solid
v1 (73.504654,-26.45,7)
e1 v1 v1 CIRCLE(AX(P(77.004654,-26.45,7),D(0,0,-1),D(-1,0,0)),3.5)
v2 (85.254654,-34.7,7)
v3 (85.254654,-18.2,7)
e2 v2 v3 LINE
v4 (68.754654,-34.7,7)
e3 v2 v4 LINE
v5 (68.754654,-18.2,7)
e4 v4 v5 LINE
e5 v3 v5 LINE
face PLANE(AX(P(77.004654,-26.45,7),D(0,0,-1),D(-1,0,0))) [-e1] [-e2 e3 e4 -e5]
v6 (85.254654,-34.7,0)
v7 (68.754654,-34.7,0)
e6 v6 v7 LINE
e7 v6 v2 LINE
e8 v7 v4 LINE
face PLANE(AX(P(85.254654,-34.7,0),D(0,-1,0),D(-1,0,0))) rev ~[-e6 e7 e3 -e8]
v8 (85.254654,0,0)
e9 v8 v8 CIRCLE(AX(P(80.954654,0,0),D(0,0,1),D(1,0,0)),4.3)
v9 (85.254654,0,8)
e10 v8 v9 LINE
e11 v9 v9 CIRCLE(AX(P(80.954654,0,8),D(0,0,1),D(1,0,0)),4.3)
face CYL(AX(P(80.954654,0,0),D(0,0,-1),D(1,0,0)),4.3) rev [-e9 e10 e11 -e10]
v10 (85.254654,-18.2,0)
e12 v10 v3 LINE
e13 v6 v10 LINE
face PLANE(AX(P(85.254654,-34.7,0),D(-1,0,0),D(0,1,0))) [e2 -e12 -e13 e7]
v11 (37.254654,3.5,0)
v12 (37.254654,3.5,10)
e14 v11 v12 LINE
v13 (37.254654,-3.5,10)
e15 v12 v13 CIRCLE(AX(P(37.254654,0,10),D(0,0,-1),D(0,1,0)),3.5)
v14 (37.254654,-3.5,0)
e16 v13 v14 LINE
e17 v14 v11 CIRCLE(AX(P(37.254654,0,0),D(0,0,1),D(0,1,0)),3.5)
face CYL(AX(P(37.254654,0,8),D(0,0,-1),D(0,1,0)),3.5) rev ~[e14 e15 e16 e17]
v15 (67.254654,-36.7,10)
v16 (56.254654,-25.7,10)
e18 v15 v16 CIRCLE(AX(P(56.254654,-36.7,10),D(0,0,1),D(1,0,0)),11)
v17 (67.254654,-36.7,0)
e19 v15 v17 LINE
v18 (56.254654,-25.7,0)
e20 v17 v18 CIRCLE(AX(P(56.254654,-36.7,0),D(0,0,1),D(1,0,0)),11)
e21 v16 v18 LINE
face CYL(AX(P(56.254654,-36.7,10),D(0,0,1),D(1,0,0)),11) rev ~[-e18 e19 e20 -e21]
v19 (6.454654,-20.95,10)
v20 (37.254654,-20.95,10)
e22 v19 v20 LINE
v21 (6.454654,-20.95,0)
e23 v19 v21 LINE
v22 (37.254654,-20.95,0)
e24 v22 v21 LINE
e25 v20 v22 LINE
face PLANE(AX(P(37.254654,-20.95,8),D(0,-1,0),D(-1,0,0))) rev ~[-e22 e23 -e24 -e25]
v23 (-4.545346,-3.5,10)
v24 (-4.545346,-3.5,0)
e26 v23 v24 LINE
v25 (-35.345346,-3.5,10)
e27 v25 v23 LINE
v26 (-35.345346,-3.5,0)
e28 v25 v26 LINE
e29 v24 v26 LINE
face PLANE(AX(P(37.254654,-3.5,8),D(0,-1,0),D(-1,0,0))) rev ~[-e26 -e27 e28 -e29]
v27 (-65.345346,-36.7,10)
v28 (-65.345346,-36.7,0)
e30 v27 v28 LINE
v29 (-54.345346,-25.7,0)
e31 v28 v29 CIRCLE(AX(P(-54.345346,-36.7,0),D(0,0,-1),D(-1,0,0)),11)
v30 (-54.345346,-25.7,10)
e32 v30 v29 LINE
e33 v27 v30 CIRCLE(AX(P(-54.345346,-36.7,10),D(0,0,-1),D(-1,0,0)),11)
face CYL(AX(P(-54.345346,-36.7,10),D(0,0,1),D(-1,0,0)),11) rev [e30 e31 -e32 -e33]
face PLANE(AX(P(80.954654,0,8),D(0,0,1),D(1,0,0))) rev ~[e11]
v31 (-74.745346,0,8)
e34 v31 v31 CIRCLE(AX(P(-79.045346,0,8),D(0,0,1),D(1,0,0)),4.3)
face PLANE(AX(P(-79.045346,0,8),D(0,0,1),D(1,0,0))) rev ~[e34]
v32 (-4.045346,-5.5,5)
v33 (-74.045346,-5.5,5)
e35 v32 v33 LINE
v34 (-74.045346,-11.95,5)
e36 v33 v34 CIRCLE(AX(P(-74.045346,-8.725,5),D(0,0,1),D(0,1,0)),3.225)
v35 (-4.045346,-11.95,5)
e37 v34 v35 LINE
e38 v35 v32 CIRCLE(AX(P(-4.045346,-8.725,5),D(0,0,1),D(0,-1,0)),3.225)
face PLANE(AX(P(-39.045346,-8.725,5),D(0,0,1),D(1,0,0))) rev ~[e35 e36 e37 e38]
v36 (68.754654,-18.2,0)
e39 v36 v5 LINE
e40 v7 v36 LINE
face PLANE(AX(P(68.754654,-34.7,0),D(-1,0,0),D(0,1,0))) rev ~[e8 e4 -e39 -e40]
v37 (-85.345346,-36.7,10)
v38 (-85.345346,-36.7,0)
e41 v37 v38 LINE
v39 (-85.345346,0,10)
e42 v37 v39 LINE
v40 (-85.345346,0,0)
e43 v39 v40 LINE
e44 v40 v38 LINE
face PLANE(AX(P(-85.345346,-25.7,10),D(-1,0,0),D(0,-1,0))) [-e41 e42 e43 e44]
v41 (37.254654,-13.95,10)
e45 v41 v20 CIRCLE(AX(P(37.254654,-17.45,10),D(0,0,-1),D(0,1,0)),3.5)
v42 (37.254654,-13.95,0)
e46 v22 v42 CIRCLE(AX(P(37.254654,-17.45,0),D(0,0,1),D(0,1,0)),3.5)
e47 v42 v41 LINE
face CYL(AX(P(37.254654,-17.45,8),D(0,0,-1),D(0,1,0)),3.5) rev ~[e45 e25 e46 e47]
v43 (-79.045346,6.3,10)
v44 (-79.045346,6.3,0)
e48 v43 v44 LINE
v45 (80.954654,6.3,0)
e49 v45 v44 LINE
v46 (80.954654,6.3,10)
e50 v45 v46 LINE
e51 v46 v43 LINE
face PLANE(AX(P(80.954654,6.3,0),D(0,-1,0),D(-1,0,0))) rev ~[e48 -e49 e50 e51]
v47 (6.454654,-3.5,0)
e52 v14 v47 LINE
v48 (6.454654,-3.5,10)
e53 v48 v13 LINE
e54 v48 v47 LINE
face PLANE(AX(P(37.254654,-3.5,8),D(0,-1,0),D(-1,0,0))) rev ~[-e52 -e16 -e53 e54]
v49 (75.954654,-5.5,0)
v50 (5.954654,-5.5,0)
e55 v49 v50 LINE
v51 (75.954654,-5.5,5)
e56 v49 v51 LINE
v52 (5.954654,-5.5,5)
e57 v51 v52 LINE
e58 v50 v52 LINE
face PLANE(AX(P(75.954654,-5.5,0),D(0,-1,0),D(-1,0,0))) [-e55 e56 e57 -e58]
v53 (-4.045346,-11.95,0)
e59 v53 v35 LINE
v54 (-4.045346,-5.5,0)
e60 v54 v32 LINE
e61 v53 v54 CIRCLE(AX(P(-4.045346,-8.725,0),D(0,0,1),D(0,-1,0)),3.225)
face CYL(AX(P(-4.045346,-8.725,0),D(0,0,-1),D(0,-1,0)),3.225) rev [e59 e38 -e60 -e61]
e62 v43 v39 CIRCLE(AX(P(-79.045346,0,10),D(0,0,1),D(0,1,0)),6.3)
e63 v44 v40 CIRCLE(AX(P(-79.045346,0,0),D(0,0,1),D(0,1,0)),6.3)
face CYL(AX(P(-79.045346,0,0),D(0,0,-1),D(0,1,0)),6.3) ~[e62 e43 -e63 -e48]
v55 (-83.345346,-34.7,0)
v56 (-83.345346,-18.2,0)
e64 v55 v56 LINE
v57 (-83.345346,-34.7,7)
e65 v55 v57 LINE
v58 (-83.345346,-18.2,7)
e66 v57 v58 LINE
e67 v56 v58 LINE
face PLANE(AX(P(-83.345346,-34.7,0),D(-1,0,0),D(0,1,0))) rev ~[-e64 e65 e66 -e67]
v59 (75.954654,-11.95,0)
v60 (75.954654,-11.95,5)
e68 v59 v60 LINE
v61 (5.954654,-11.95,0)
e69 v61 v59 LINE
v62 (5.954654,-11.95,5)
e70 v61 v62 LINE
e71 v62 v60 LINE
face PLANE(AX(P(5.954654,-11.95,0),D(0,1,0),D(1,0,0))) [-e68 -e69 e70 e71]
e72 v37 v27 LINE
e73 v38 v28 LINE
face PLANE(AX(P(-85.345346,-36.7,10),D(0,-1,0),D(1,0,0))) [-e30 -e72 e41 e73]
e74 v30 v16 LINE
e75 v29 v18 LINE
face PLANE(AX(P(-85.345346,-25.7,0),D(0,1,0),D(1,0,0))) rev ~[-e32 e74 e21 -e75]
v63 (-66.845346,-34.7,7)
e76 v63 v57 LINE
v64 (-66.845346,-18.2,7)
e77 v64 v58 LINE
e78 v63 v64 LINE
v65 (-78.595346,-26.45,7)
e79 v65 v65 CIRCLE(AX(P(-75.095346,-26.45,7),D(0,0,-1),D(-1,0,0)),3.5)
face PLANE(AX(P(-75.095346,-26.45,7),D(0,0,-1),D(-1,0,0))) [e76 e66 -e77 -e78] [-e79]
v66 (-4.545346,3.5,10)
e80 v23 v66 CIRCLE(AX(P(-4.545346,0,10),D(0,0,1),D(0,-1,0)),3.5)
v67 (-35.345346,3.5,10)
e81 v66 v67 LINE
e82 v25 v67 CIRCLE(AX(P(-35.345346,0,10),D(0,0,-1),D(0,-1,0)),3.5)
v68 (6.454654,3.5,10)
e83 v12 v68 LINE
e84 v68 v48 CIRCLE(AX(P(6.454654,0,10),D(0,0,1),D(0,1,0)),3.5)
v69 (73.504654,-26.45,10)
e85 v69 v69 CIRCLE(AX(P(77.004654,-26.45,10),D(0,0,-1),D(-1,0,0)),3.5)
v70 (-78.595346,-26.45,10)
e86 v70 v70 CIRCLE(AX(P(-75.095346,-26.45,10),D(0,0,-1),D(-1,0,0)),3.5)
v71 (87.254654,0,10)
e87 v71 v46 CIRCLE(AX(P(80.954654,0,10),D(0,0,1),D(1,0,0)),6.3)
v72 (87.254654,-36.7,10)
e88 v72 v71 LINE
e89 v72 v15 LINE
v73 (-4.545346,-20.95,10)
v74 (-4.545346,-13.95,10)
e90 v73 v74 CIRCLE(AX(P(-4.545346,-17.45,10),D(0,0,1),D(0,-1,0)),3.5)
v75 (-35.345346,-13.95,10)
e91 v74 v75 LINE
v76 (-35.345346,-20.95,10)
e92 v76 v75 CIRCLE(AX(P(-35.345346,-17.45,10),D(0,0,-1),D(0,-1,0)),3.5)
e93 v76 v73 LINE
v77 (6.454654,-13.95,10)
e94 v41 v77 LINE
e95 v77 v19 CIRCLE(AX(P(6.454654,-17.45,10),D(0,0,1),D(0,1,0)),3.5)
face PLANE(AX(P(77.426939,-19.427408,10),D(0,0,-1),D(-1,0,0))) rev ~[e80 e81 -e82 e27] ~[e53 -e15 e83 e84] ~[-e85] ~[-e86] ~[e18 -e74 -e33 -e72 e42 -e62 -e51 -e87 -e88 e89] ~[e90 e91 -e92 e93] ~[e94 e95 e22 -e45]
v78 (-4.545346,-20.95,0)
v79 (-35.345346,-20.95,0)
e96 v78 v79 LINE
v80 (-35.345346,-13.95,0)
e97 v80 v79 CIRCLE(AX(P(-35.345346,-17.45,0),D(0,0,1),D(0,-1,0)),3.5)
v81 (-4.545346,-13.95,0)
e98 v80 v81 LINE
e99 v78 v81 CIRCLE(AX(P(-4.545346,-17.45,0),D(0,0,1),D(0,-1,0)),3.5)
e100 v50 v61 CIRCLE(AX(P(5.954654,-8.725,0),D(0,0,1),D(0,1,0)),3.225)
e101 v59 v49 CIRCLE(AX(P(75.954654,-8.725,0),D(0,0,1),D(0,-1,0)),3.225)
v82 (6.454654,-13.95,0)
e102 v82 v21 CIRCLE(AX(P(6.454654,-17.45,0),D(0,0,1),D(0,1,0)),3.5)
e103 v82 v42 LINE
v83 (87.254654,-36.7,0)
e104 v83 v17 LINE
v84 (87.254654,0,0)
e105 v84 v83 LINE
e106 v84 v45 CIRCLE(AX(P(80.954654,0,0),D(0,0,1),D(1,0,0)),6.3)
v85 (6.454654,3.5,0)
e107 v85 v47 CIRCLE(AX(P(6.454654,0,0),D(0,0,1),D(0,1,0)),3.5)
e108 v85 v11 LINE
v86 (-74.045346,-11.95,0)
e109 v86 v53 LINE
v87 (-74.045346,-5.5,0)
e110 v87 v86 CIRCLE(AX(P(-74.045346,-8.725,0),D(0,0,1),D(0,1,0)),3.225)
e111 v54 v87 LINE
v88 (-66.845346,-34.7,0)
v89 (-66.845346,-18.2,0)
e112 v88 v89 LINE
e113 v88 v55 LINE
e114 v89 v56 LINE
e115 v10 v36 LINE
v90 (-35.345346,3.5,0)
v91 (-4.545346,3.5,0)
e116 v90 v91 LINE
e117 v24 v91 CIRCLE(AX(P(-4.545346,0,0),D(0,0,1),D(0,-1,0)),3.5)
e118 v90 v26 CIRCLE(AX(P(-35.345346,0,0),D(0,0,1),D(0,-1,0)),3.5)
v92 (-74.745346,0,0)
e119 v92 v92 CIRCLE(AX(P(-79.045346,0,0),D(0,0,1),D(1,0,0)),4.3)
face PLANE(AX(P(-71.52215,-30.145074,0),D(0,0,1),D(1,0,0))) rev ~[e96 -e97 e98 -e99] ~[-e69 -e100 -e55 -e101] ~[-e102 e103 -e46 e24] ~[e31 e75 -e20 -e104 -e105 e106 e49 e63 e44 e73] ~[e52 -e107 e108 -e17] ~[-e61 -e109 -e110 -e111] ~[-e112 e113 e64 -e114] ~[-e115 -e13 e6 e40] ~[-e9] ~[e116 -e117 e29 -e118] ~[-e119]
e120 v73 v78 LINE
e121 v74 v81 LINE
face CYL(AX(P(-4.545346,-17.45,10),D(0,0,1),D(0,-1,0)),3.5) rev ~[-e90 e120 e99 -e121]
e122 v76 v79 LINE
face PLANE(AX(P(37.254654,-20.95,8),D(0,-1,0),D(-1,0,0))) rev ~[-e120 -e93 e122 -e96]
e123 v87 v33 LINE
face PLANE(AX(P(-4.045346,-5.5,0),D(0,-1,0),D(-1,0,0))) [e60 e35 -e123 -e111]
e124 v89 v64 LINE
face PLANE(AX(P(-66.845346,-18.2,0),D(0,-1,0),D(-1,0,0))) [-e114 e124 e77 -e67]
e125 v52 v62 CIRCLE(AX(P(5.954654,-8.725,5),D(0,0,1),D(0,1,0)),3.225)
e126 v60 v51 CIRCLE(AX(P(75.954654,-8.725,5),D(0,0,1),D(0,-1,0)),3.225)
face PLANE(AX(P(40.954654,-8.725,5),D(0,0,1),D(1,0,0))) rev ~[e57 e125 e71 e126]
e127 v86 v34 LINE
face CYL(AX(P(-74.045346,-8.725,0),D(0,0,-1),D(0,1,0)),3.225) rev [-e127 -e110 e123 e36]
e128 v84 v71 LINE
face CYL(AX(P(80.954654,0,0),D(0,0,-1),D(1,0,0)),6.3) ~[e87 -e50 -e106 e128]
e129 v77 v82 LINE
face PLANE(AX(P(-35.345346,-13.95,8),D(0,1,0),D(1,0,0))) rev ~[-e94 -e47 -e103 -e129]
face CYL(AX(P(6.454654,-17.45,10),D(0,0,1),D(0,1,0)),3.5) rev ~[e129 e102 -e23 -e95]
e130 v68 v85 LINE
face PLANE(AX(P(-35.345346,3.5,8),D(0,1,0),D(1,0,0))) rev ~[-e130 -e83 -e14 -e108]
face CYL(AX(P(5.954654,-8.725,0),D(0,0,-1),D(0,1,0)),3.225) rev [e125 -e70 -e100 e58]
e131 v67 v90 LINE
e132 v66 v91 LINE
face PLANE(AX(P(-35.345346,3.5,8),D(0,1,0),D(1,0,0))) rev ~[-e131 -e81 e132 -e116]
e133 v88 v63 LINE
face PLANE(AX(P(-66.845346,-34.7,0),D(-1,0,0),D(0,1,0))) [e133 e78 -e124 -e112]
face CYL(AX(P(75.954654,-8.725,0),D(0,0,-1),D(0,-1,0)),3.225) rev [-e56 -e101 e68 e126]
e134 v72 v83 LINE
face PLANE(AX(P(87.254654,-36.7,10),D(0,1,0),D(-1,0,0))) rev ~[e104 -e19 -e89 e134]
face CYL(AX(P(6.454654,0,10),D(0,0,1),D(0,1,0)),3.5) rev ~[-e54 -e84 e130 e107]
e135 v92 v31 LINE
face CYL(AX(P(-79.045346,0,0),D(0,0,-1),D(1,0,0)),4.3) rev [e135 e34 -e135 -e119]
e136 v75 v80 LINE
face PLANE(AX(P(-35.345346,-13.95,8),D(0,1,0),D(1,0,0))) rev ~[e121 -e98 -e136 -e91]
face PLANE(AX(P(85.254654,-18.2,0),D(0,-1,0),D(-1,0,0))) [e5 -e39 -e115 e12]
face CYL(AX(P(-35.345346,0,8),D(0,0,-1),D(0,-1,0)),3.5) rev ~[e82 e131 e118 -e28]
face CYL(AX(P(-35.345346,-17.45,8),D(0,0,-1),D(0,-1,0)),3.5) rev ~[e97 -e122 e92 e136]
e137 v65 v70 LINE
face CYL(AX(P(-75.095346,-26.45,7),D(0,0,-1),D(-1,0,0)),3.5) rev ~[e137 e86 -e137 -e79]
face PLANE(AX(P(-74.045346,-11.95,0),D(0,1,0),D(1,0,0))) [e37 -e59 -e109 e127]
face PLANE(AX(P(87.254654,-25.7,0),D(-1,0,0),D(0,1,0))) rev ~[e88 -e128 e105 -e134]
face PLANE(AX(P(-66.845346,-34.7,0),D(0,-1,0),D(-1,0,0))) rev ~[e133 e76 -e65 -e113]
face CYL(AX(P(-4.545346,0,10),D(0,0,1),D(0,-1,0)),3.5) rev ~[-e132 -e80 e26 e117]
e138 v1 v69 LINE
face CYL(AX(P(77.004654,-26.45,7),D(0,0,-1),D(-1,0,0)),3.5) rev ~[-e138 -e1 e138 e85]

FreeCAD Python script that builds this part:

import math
import FreeCAD as App
import Part
import Sketcher


def add_polygon(sketch, points):
    """Adds a closed chain of lines whose ends are joined by coincident constraints."""
    first, n = sketch.GeometryCount, len(points)
    for a, b in zip(points, points[1:] + points[:1]):
        sketch.addGeometry(Part.LineSegment(App.Vector(*a, 0), App.Vector(*b, 0)), False)
    for i in range(n):
        sketch.addConstraint(Sketcher.Constraint("Coincident", first + i, 2, first + (i + 1) % n, 1))

doc = App.newDocument("Part")
body = doc.addObject("PartDesign::Body", "Body")

sketch1 = body.newObject("Sketcher::SketchObject", "Sketch")
sketch1.AttachmentSupport = (doc.getObject("XY_Plane"), [""])
sketch1.MapMode = "FlatFace"
sketch1.addGeometry(Part.LineSegment(App.Vector(-85.345346, -25.7, 0), App.Vector(87.254654, -25.7, 0)), False)
sketch1.addGeometry(Part.LineSegment(App.Vector(87.254654, -25.7, 0), App.Vector(87.254654, 0, 0)), False)
sketch1.addGeometry(Part.ArcOfCircle(Part.Circle(App.Vector(80.954654, 0, 0), App.Vector(0, 0, 1), 6.3), math.radians(0), math.radians(90)), False)
sketch1.addGeometry(Part.LineSegment(App.Vector(80.954654, 6.3, 0), App.Vector(-79.045346, 6.3, 0)), False)
sketch1.addGeometry(Part.ArcOfCircle(Part.Circle(App.Vector(-79.045346, 0, 0), App.Vector(0, 0, 1), 6.3), math.radians(90), math.radians(180)), False)
sketch1.addGeometry(Part.LineSegment(App.Vector(-85.345346, 0, 0), App.Vector(-85.345346, -25.7, 0)), False)
add_polygon(sketch1, [(-70.845346, -23.7), (-83.345346, -23.7), (-83.345346, -11.2), (-70.845346, -11.2)])
add_polygon(sketch1, [(85.254654, -23.7), (72.754654, -23.7), (72.754654, -11.2), (85.254654, -11.2)])
sketch1.addGeometry(Part.Circle(App.Vector(-79.045346, 0, 0), App.Vector(0, 0, 1), 4.3), False)
sketch1.addGeometry(Part.Circle(App.Vector(80.954654, 0, 0), App.Vector(0, 0, 1), 4.3), False)
sketch1.addConstraint([
    Sketcher.Constraint("Coincident", 0, 2, 1, 1),
    Sketcher.Constraint("Tangent", 1, 2, 2, 1),
    Sketcher.Constraint("Tangent", 2, 2, 3, 1),
    Sketcher.Constraint("Tangent", 3, 2, 4, 1),
    Sketcher.Constraint("Tangent", 4, 2, 5, 1),
    Sketcher.Constraint("Coincident", 5, 2, 0, 1),
    Sketcher.Constraint("Horizontal", 0),
    Sketcher.Constraint("Vertical", 1),
    Sketcher.Constraint("Horizontal", 3),
    Sketcher.Constraint("Vertical", 5),
    Sketcher.Constraint("Horizontal", 6),
    Sketcher.Constraint("Vertical", 7),
    Sketcher.Constraint("Horizontal", 8),
    Sketcher.Constraint("Vertical", 9),
    Sketcher.Constraint("Horizontal", 10),
    Sketcher.Constraint("Vertical", 11),
    Sketcher.Constraint("Horizontal", 12),
    Sketcher.Constraint("Vertical", 13),
    Sketcher.Constraint("Coincident", 14, 3, 4, 3),
    Sketcher.Constraint("Coincident", 15, 3, 2, 3),
    Sketcher.Constraint("Equal", 2, 4),
    Sketcher.Constraint("Equal", 14, 15),
    Sketcher.Constraint("PointOnObject", 2, 3, -1),
    Sketcher.Constraint("Horizontal", 9, 2, 10, 2),
    Sketcher.Constraint("Horizontal", 8, 2, 11, 2),
    Sketcher.Constraint("Equal", 8, 10),
    Sketcher.Constraint("Equal", 12, 7),
    Sketcher.Constraint("Diameter", 14, 8.6),
    Sketcher.Constraint("Radius", 2, 6.3),
    Sketcher.Constraint("DistanceX", 3, 2, 3, 1, 160.0),
    Sketcher.Constraint("DistanceX", 6, 2, 6, 1, 12.5),
    Sketcher.Constraint("DistanceY", 1, 1, 1, 2, 25.7),
    Sketcher.Constraint("DistanceX", 5, 2, 6, 2, 2.0),
    Sketcher.Constraint("DistanceY", 5, 2, 6, 2, 2.0),
    Sketcher.Constraint("DistanceX", 12, 2, 1, 2, 2.0),
    Sketcher.Constraint("DistanceX", -1, 1, 2, 3, 80.954654),
])
pad1 = body.newObject("PartDesign::Pad", "Pad")
pad1.Profile = sketch1
pad1.Length = 8

sketch2 = body.newObject("Sketcher::SketchObject", "Sketch001")
sketch2.AttachmentSupport = (doc.getObject("XY_Plane"), [""])
sketch2.MapMode = "FlatFace"
sketch2.AttachmentOffset = App.Placement(App.Vector(0, 0, 8), App.Rotation())
sketch2.addGeometry([
    Part.LineSegment(App.Vector(37.254654, 3.5, 0), App.Vector(-35.345346, 3.5, 0)),
    Part.ArcOfCircle(Part.Circle(App.Vector(-35.345346, 0, 0), App.Vector(0, 0, 1), 3.5), math.radians(90), math.radians(270)),
    Part.LineSegment(App.Vector(-35.345346, -3.5, 0), App.Vector(37.254654, -3.5, 0)),
    Part.ArcOfCircle(Part.Circle(App.Vector(37.254654, 0, 0), App.Vector(0, 0, 1), 3.5), math.radians(-90), math.radians(90)),
    Part.LineSegment(App.Vector(37.254654, -13.95, 0), App.Vector(-35.345346, -13.95, 0)),
    Part.ArcOfCircle(Part.Circle(App.Vector(-35.345346, -17.45, 0), App.Vector(0, 0, 1), 3.5), math.radians(90), math.radians(270)),
    Part.LineSegment(App.Vector(-35.345346, -20.95, 0), App.Vector(37.254654, -20.95, 0)),
    Part.ArcOfCircle(Part.Circle(App.Vector(37.254654, -17.45, 0), App.Vector(0, 0, 1), 3.5), math.radians(-90), math.radians(90)),
], False)
sketch2.addConstraint([
    Sketcher.Constraint("Tangent", 0, 2, 1, 1),
    Sketcher.Constraint("Tangent", 1, 2, 2, 1),
    Sketcher.Constraint("Tangent", 2, 2, 3, 1),
    Sketcher.Constraint("Tangent", 3, 2, 0, 1),
    Sketcher.Constraint("Tangent", 4, 2, 5, 1),
    Sketcher.Constraint("Tangent", 5, 2, 6, 1),
    Sketcher.Constraint("Tangent", 6, 2, 7, 1),
    Sketcher.Constraint("Tangent", 7, 2, 4, 1),
    Sketcher.Constraint("Horizontal", 0),
    Sketcher.Constraint("Horizontal", 2),
    Sketcher.Constraint("Horizontal", 4),
    Sketcher.Constraint("Horizontal", 6),
    Sketcher.Constraint("Equal", 3, 5),
    Sketcher.Constraint("PointOnObject", 1, 3, -1),
    Sketcher.Constraint("Vertical", 1, 3, 5, 3),
    Sketcher.Constraint("Vertical", 3, 3, 7, 3),
    Sketcher.Constraint("Radius", 1, 3.5),
    Sketcher.Constraint("DistanceX", 0, 2, 0, 1, 72.6),
    Sketcher.Constraint("DistanceY", 5, 3, -1, 1, 17.45),
    Sketcher.Constraint("DistanceX", 1, 3, -1, 1, 35.345346),
])
pocket1 = body.newObject("PartDesign::Pocket", "Pocket")
pocket1.Profile = sketch2
pocket1.Length = 8

sketch3 = body.newObject("Sketcher::SketchObject", "Sketch002")
sketch3.AttachmentSupport = (doc.getObject("XY_Plane"), [""])
sketch3.MapMode = "FlatFace"
sketch3.addGeometry(Part.LineSegment(App.Vector(-85.345346, -25.7, 0), App.Vector(87.254654, -25.7, 0)), False)
sketch3.addGeometry(Part.LineSegment(App.Vector(87.254654, -25.7, 0), App.Vector(87.254654, 0, 0)), False)
sketch3.addGeometry(Part.ArcOfCircle(Part.Circle(App.Vector(80.954654, 0, 0), App.Vector(0, 0, 1), 6.3), math.radians(0), math.radians(90)), False)
sketch3.addGeometry(Part.LineSegment(App.Vector(80.954654, 6.3, 0), App.Vector(-79.045346, 6.3, 0)), False)
sketch3.addGeometry(Part.ArcOfCircle(Part.Circle(App.Vector(-79.045346, 0, 0), App.Vector(0, 0, 1), 6.3), math.radians(90), math.radians(180)), False)
sketch3.addGeometry(Part.LineSegment(App.Vector(-85.345346, 0, 0), App.Vector(-85.345346, -25.7, 0)), False)
add_polygon(sketch3, [(-70.845346, -23.7), (-83.345346, -23.7), (-83.345346, -11.2), (-70.845346, -11.2)])
add_polygon(sketch3, [(85.254654, -23.7), (72.754654, -23.7), (72.754654, -11.2), (85.254654, -11.2)])
sketch3.addGeometry(Part.Circle(App.Vector(-79.045346, 0, 0), App.Vector(0, 0, 1), 4.3), False)
sketch3.addGeometry(Part.Circle(App.Vector(80.954654, 0, 0), App.Vector(0, 0, 1), 4.3), False)
sketch3.addConstraint([
    Sketcher.Constraint("Coincident", 0, 2, 1, 1),
    Sketcher.Constraint("Tangent", 1, 2, 2, 1),
    Sketcher.Constraint("Tangent", 2, 2, 3, 1),
    Sketcher.Constraint("Tangent", 3, 2, 4, 1),
    Sketcher.Constraint("Tangent", 4, 2, 5, 1),
    Sketcher.Constraint("Coincident", 5, 2, 0, 1),
    Sketcher.Constraint("Horizontal", 0),
    Sketcher.Constraint("Vertical", 1),
    Sketcher.Constraint("Horizontal", 3),
    Sketcher.Constraint("Vertical", 5),
    Sketcher.Constraint("Horizontal", 6),
    Sketcher.Constraint("Vertical", 7),
    Sketcher.Constraint("Horizontal", 8),
    Sketcher.Constraint("Vertical", 9),
    Sketcher.Constraint("Horizontal", 10),
    Sketcher.Constraint("Vertical", 11),
    Sketcher.Constraint("Horizontal", 12),
    Sketcher.Constraint("Vertical", 13),
    Sketcher.Constraint("Coincident", 14, 3, 4, 3),
    Sketcher.Constraint("Coincident", 15, 3, 2, 3),
    Sketcher.Constraint("Equal", 2, 4),
    Sketcher.Constraint("Equal", 14, 15),
    Sketcher.Constraint("PointOnObject", 2, 3, -1),
    Sketcher.Constraint("Horizontal", 9, 2, 10, 2),
    Sketcher.Constraint("Horizontal", 8, 2, 11, 2),
    Sketcher.Constraint("Equal", 8, 10),
    Sketcher.Constraint("Equal", 12, 7),
    Sketcher.Constraint("Diameter", 14, 8.6),
    Sketcher.Constraint("Radius", 2, 6.3),
    Sketcher.Constraint("DistanceX", 3, 2, 3, 1, 160.0),
    Sketcher.Constraint("DistanceX", 6, 2, 6, 1, 12.5),
    Sketcher.Constraint("DistanceY", 1, 1, 1, 2, 25.7),
    Sketcher.Constraint("DistanceX", 5, 2, 6, 2, 2.0),
    Sketcher.Constraint("DistanceY", 5, 2, 6, 2, 2.0),
    Sketcher.Constraint("DistanceX", 12, 2, 1, 2, 2.0),
    Sketcher.Constraint("DistanceX", -1, 1, 2, 3, 80.954654),
])
pad2 = body.newObject("PartDesign::Pad", "Pad001")
pad2.Profile = sketch3
pad2.Length = 10

sketch4 = body.newObject("Sketcher::SketchObject", "Sketch003")
sketch4.AttachmentSupport = (doc.getObject("XY_Plane"), [""])
sketch4.MapMode = "FlatFace"
sketch4.AttachmentOffset = App.Placement(App.Vector(0, 0, 8), App.Rotation())
sketch4.addGeometry([
    Part.LineSegment(App.Vector(37.254654, 3.5, 0), App.Vector(-35.345346, 3.5, 0)),
    Part.ArcOfCircle(Part.Circle(App.Vector(-35.345346, 0, 0), App.Vector(0, 0, 1), 3.5), math.radians(90), math.radians(270)),
    Part.LineSegment(App.Vector(-35.345346, -3.5, 0), App.Vector(37.254654, -3.5, 0)),
    Part.ArcOfCircle(Part.Circle(App.Vector(37.254654, 0, 0), App.Vector(0, 0, 1), 3.5), math.radians(-90), math.radians(90)),
    Part.LineSegment(App.Vector(37.254654, -13.95, 0), App.Vector(-35.345346, -13.95, 0)),
    Part.ArcOfCircle(Part.Circle(App.Vector(-35.345346, -17.45, 0), App.Vector(0, 0, 1), 3.5), math.radians(90), math.radians(270)),
    Part.LineSegment(App.Vector(-35.345346, -20.95, 0), App.Vector(37.254654, -20.95, 0)),
    Part.ArcOfCircle(Part.Circle(App.Vector(37.254654, -17.45, 0), App.Vector(0, 0, 1), 3.5), math.radians(-90), math.radians(90)),
], False)
sketch4.addConstraint([
    Sketcher.Constraint("Tangent", 0, 2, 1, 1),
    Sketcher.Constraint("Tangent", 1, 2, 2, 1),
    Sketcher.Constraint("Tangent", 2, 2, 3, 1),
    Sketcher.Constraint("Tangent", 3, 2, 0, 1),
    Sketcher.Constraint("Tangent", 4, 2, 5, 1),
    Sketcher.Constraint("Tangent", 5, 2, 6, 1),
    Sketcher.Constraint("Tangent", 6, 2, 7, 1),
    Sketcher.Constraint("Tangent", 7, 2, 4, 1),
    Sketcher.Constraint("Horizontal", 0),
    Sketcher.Constraint("Horizontal", 2),
    Sketcher.Constraint("Horizontal", 4),
    Sketcher.Constraint("Horizontal", 6),
    Sketcher.Constraint("Equal", 3, 5),
    Sketcher.Constraint("PointOnObject", 1, 3, -1),
    Sketcher.Constraint("Vertical", 1, 3, 5, 3),
    Sketcher.Constraint("Vertical", 3, 3, 7, 3),
    Sketcher.Constraint("Radius", 1, 3.5),
    Sketcher.Constraint("DistanceX", 0, 2, 0, 1, 72.6),
    Sketcher.Constraint("DistanceY", 5, 3, -1, 1, 17.45),
    Sketcher.Constraint("DistanceX", 1, 3, -1, 1, 35.345346),
])
pocket2 = body.newObject("PartDesign::Pocket", "Pocket001")
pocket2.Profile = sketch4
pocket2.Type = "ThroughAll"
pocket2.Midplane = True

sketch5 = body.newObject("Sketcher::SketchObject", "Sketch004")
sketch5.AttachmentSupport = (doc.getObject("XY_Plane"), [""])
sketch5.MapMode = "FlatFace"
sketch5.AttachmentOffset = App.Placement(App.Vector(0, 0, 10), App.Rotation())
add_polygon(sketch5, [(-83.345346, -11.2), (-83.345346, -23.7), (-70.845346, -23.7), (-70.845346, -11.2)])
add_polygon(sketch5, [(72.754654, -11.2), (72.754654, -23.7), (85.254654, -23.7), (85.254654, -11.2)])
sketch5.addConstraint([
    Sketcher.Constraint("Vertical", 0),
    Sketcher.Constraint("Horizontal", 1),
    Sketcher.Constraint("Vertical", 2),
    Sketcher.Constraint("Horizontal", 3),
    Sketcher.Constraint("Vertical", 4),
    Sketcher.Constraint("Horizontal", 5),
    Sketcher.Constraint("Vertical", 6),
    Sketcher.Constraint("Horizontal", 7),
    Sketcher.Constraint("Horizontal", 1, 2, 4, 2),
    Sketcher.Constraint("Horizontal", 3, 2, 6, 2),
    Sketcher.Constraint("Equal", 3, 5),
    Sketcher.Constraint("Equal", 7, 0),
    Sketcher.Constraint("DistanceX", 1, 1, 1, 2, 12.5),
    Sketcher.Constraint("DistanceY", 0, 2, -1, 1, 23.7),
    Sketcher.Constraint("DistanceX", 1, 2, 4, 2, 143.6),
    Sketcher.Constraint("DistanceX", 0, 2, -1, 1, 83.345346),
])
pad3 = body.newObject("PartDesign::Pad", "Pad002")
pad3.Profile = sketch5
pad3.Length = 2
pad3.Reversed = True

sketch6 = body.newObject("Sketcher::SketchObject", "Sketch005")
sketch6.AttachmentSupport = (doc.getObject("XY_Plane"), [""])
sketch6.MapMode = "FlatFace"
sketch6.AttachmentOffset = App.Placement(App.Vector(0, 0, 10), App.Rotation())
sketch6.addGeometry([
    Part.Circle(App.Vector(-79.045346, 0, 0), App.Vector(0, 0, 1), 4.3),
    Part.Circle(App.Vector(80.954654, 0, 0), App.Vector(0, 0, 1), 4.3),
], False)
sketch6.addConstraint([
    Sketcher.Constraint("Equal", 0, 1),
    Sketcher.Constraint("PointOnObject", 0, 3, -1),
    Sketcher.Constraint("PointOnObject", 1, 3, -1),
    Sketcher.Constraint("Diameter", 0, 8.6),
    Sketcher.Constraint("DistanceX", 0, 3, 1, 3, 160.0),
    Sketcher.Constraint("DistanceX", 0, 3, -1, 1, 79.045346),
])
pad4 = body.newObject("PartDesign::Pad", "Pad003")
pad4.Profile = sketch6
pad4.Length = 2
pad4.Reversed = True

sketch7 = body.newObject("Sketcher::SketchObject", "Sketch006")
sketch7.AttachmentSupport = (doc.getObject("XY_Plane"), [""])
sketch7.MapMode = "FlatFace"
sketch7.AttachmentOffset = App.Placement(App.Vector(0, 0, 10), App.Rotation())
sketch7.addGeometry([
    Part.LineSegment(App.Vector(6.454654, 3.5, 0), App.Vector(-4.545346, 3.5, 0)),
    Part.ArcOfCircle(Part.Circle(App.Vector(-4.545346, 0, 0), App.Vector(0, 0, 1), 3.5), math.radians(-90), math.radians(90)),
    Part.LineSegment(App.Vector(-4.545346, -3.5, 0), App.Vector(6.454654, -3.5, 0)),
    Part.ArcOfCircle(Part.Circle(App.Vector(6.454654, 0, 0), App.Vector(0, 0, 1), 3.5), math.radians(90), math.radians(270)),
], False)
sketch7.addConstraint([
    Sketcher.Constraint("Tangent", 0, 2, 1, 2),
    Sketcher.Constraint("Tangent", 1, 1, 2, 1),
    Sketcher.Constraint("Tangent", 2, 2, 3, 2),
    Sketcher.Constraint("Tangent", 3, 1, 0, 1),
    Sketcher.Constraint("Horizontal", 0),
    Sketcher.Constraint("Horizontal", 2),
    Sketcher.Constraint("PointOnObject", 1, 3, -1),
    Sketcher.Constraint("Radius", 1, 3.5),
    Sketcher.Constraint("DistanceX", 0, 2, 0, 1, 11.0),
    Sketcher.Constraint("DistanceX", 1, 3, -1, 1, 4.545346),
])
pad5 = body.newObject("PartDesign::Pad", "Pad004")
pad5.Profile = sketch7
pad5.Length = 10
pad5.Reversed = True

sketch8 = body.newObject("Sketcher::SketchObject", "Sketch007")
sketch8.AttachmentSupport = (doc.getObject("XY_Plane"), [""])
sketch8.MapMode = "FlatFace"
sketch8.AttachmentOffset = App.Placement(App.Vector(0, 0, 10), App.Rotation())
sketch8.addGeometry([
    Part.LineSegment(App.Vector(6.454654, -13.95, 0), App.Vector(-4.545346, -13.95, 0)),
    Part.ArcOfCircle(Part.Circle(App.Vector(-4.545346, -17.45, 0), App.Vector(0, 0, 1), 3.5), math.radians(-90), math.radians(90)),
    Part.LineSegment(App.Vector(-4.545346, -20.95, 0), App.Vector(6.454654, -20.95, 0)),
    Part.ArcOfCircle(Part.Circle(App.Vector(6.454654, -17.45, 0), App.Vector(0, 0, 1), 3.5), math.radians(90), math.radians(270)),
], False)
sketch8.addConstraint([
    Sketcher.Constraint("Tangent", 0, 2, 1, 2),
    Sketcher.Constraint("Tangent", 1, 1, 2, 1),
    Sketcher.Constraint("Tangent", 2, 2, 3, 2),
    Sketcher.Constraint("Tangent", 3, 1, 0, 1),
    Sketcher.Constraint("Horizontal", 0),
    Sketcher.Constraint("Horizontal", 2),
    Sketcher.Constraint("Radius", 1, 3.5),
    Sketcher.Constraint("DistanceX", 0, 2, 0, 1, 11.0),
    Sketcher.Constraint("DistanceY", 1, 3, -1, 1, 17.45),
    Sketcher.Constraint("DistanceX", 1, 3, -1, 1, 4.545346),
])
pad6 = body.newObject("PartDesign::Pad", "Pad005")
pad6.Profile = sketch8
pad6.Length = 10
pad6.Reversed = True

sketch9 = body.newObject("Sketcher::SketchObject", "Sketch008")
sketch9.AttachmentSupport = (doc.getObject("XY_Plane"), [""])
sketch9.MapMode = "FlatFace"
sketch9.AttachmentOffset = App.Placement(App.Vector(0, 0, 10), App.Rotation())
sketch9.addGeometry([
    Part.LineSegment(App.Vector(-85.345346, -25.7, 0), App.Vector(-85.345346, -36.7, 0)),
    Part.LineSegment(App.Vector(-85.345346, -36.7, 0), App.Vector(-65.345346, -36.7, 0)),
    Part.ArcOfCircle(Part.Circle(App.Vector(-54.345346, -36.7, 0), App.Vector(0, 0, 1), 11), math.radians(90), math.radians(180)),
    Part.LineSegment(App.Vector(-54.345346, -25.7, 0), App.Vector(-85.345346, -25.7, 0)),
    Part.LineSegment(App.Vector(87.254654, -36.7, 0), App.Vector(87.254654, -25.7, 0)),
    Part.LineSegment(App.Vector(87.254654, -25.7, 0), App.Vector(56.254654, -25.7, 0)),
    Part.ArcOfCircle(Part.Circle(App.Vector(56.254654, -36.7, 0), App.Vector(0, 0, 1), 11), math.radians(0), math.radians(90)),
    Part.LineSegment(App.Vector(67.254654, -36.7, 0), App.Vector(87.254654, -36.7, 0)),
], False)
sketch9.addConstraint([
    Sketcher.Constraint("Coincident", 0, 2, 1, 1),
    Sketcher.Constraint("Coincident", 1, 2, 2, 2),
    Sketcher.Constraint("Tangent", 2, 1, 3, 1),
    Sketcher.Constraint("Coincident", 3, 2, 0, 1),
    Sketcher.Constraint("Coincident", 4, 2, 5, 1),
    Sketcher.Constraint("Tangent", 5, 2, 6, 2),
    Sketcher.Constraint("Coincident", 6, 1, 7, 1),
    Sketcher.Constraint("Coincident", 7, 2, 4, 1),
    Sketcher.Constraint("Vertical", 0),
    Sketcher.Constraint("Horizontal", 1),
    Sketcher.Constraint("Horizontal", 3),
    Sketcher.Constraint("Vertical", 4),
    Sketcher.Constraint("Horizontal", 5),
    Sketcher.Constraint("Horizontal", 7),
    Sketcher.Constraint("Equal", 2, 6),
    Sketcher.Constraint("Horizontal", 2, 3, 6, 3),
    Sketcher.Constraint("Horizontal", 6, 3, 0, 2),
    Sketcher.Constraint("Horizontal", 1, 2, 6, 1),
    Sketcher.Constraint("Equal", 3, 5),
    Sketcher.Constraint("Radius", 2, 11.0),
    Sketcher.Constraint("DistanceX", 1, 1, 1, 2, 20.0),
    Sketcher.Constraint("DistanceY", 2, 3, -1, 1, 36.7),
    Sketcher.Constraint("DistanceX", 2, 3, 6, 3, 110.6),
    Sketcher.Constraint("DistanceX", 2, 3, -1, 1, 54.345346),
])
pad7 = body.newObject("PartDesign::Pad", "Pad006")
pad7.Profile = sketch9
pad7.Length = 10
pad7.Reversed = True

sketch10 = body.newObject("Sketcher::SketchObject", "Sketch009")
sketch10.AttachmentSupport = (doc.getObject("XY_Plane"), [""])
sketch10.MapMode = "FlatFace"
add_polygon(sketch10, [(86.487984, -8.174903), (86.487984, -30.679913), (68.365893, -30.679913), (68.365893, -8.174903)])
add_polygon(sketch10, [(-67.372409, -9.151596), (-67.372409, -27.920086), (-84.287482, -27.920086), (-84.287482, -9.151596)])
sketch10.addConstraint([
    Sketcher.Constraint("Vertical", 0),
    Sketcher.Constraint("Horizontal", 1),
    Sketcher.Constraint("Vertical", 2),
    Sketcher.Constraint("Horizontal", 3),
    Sketcher.Constraint("Vertical", 4),
    Sketcher.Constraint("Horizontal", 5),
    Sketcher.Constraint("Vertical", 6),
    Sketcher.Constraint("Horizontal", 7),
    Sketcher.Constraint("DistanceX", 1, 2, 1, 1, 18.122091),
    Sketcher.Constraint("DistanceY", 0, 2, 0, 1, 22.50501),
    Sketcher.Constraint("DistanceY", 4, 2, 4, 1, 18.76849),
    Sketcher.Constraint("DistanceX", 5, 2, 5, 1, 16.915073),
    Sketcher.Constraint("DistanceX", 4, 2, -1, 1, 67.372409),
    Sketcher.Constraint("DistanceX", -1, 1, 0, 2, 86.487984),
    Sketcher.Constraint("DistanceY", 0, 2, -1, 1, 30.679913),
    Sketcher.Constraint("DistanceY", 4, 2, -1, 1, 27.920086),
])
pad8 = body.newObject("PartDesign::Pad", "Pad007")
pad8.Profile = sketch10
pad8.Length = 10

sketch11 = body.newObject("Sketcher::SketchObject", "Sketch010")
sketch11.AttachmentSupport = (doc.getObject("XY_Plane"), [""])
sketch11.MapMode = "FlatFace"
add_polygon(sketch11, [(85.254654, -18.2), (85.254654, -34.7), (68.754654, -34.7), (68.754654, -18.2)])
add_polygon(sketch11, [(-66.845346, -18.2), (-66.845346, -34.7), (-83.345346, -34.7), (-83.345346, -18.2)])
sketch11.addConstraint([
    Sketcher.Constraint("Vertical", 0),
    Sketcher.Constraint("Horizontal", 1),
    Sketcher.Constraint("Vertical", 2),
    Sketcher.Constraint("Horizontal", 3),
    Sketcher.Constraint("Vertical", 4),
    Sketcher.Constraint("Horizontal", 5),
    Sketcher.Constraint("Vertical", 6),
    Sketcher.Constraint("Horizontal", 7),
    Sketcher.Constraint("Horizontal", 1, 2, 4, 2),
    Sketcher.Constraint("Horizontal", 3, 2, 6, 2),
    Sketcher.Constraint("Equal", 3, 5),
    Sketcher.Constraint("Equal", 7, 0),
    Sketcher.Constraint("DistanceX", 1, 2, 1, 1, 16.5),
    Sketcher.Constraint("DistanceY", 0, 2, -1, 1, 34.7),
    Sketcher.Constraint("DistanceX", 4, 2, 1, 2, 135.6),
    Sketcher.Constraint("DistanceX", -1, 1, 0, 2, 85.254654),
])
pocket3 = body.newObject("PartDesign::Pocket", "Pocket002")
pocket3.Profile = sketch11
pocket3.Length = 7
pocket3.Reversed = True

sketch12 = body.newObject("Sketcher::SketchObject", "Sketch011")
sketch12.AttachmentSupport = (doc.getObject("XY_Plane"), [""])
sketch12.MapMode = "FlatFace"
sketch12.AttachmentOffset = App.Placement(App.Vector(0, 0, 7), App.Rotation())
sketch12.addGeometry([
    Part.Circle(App.Vector(-75.095346, -26.45, 0), App.Vector(0, 0, 1), 3.5),
    Part.Circle(App.Vector(77.004654, -26.45, 0), App.Vector(0, 0, 1), 3.5),
], False)
sketch12.addConstraint([
    Sketcher.Constraint("Equal", 0, 1),
    Sketcher.Constraint("Horizontal", 0, 3, 1, 3),
    Sketcher.Constraint("Diameter", 0, 7.0),
    Sketcher.Constraint("DistanceX", 0, 3, 1, 3, 152.1),
    Sketcher.Constraint("DistanceY", 0, 3, -1, 1, 26.45),
    Sketcher.Constraint("DistanceX", 0, 3, -1, 1, 75.095346),
])
pocket4 = body.newObject("PartDesign::Pocket", "Pocket003")
pocket4.Profile = sketch12
pocket4.Length = 7
pocket4.Reversed = True

sketch13 = body.newObject("Sketcher::SketchObject", "Sketch012")
sketch13.AttachmentSupport = (doc.getObject("XY_Plane"), [""])
sketch13.MapMode = "FlatFace"
sketch13.addGeometry([
    Part.LineSegment(App.Vector(5.954654, -5.5, 0), App.Vector(75.954654, -5.5, 0)),
    Part.ArcOfCircle(Part.Circle(App.Vector(75.954654, -8.725, 0), App.Vector(0, 0, 1), 3.225), math.radians(-90), math.radians(90)),
    Part.LineSegment(App.Vector(75.954654, -11.95, 0), App.Vector(5.954654, -11.95, 0)),
    Part.ArcOfCircle(Part.Circle(App.Vector(5.954654, -8.725, 0), App.Vector(0, 0, 1), 3.225), math.radians(90), math.radians(270)),
    Part.LineSegment(App.Vector(-74.045346, -5.5, 0), App.Vector(-4.045346, -5.5, 0)),
    Part.ArcOfCircle(Part.Circle(App.Vector(-4.045346, -8.725, 0), App.Vector(0, 0, 1), 3.225), math.radians(-90), math.radians(90)),
    Part.LineSegment(App.Vector(-4.045346, -11.95, 0), App.Vector(-74.045346, -11.95, 0)),
    Part.ArcOfCircle(Part.Circle(App.Vector(-74.045346, -8.725, 0), App.Vector(0, 0, 1), 3.225), math.radians(90), math.radians(270)),
], False)
sketch13.addConstraint([
    Sketcher.Constraint("Tangent", 0, 2, 1, 2),
    Sketcher.Constraint("Tangent", 1, 1, 2, 1),
    Sketcher.Constraint("Tangent", 2, 2, 3, 2),
    Sketcher.Constraint("Tangent", 3, 1, 0, 1),
    Sketcher.Constraint("Tangent", 4, 2, 5, 2),
    Sketcher.Constraint("Tangent", 5, 1, 6, 1),
    Sketcher.Constraint("Tangent", 6, 2, 7, 2),
    Sketcher.Constraint("Tangent", 7, 1, 4, 1),
    Sketcher.Constraint("Horizontal", 0),
    Sketcher.Constraint("Horizontal", 2),
    Sketcher.Constraint("Horizontal", 4),
    Sketcher.Constraint("Horizontal", 6),
    Sketcher.Constraint("Equal", 3, 5),
    Sketcher.Constraint("Horizontal", 3, 3, 5, 3),
    Sketcher.Constraint("Equal", 2, 4),
    Sketcher.Constraint("DistanceX", 0, 1, 0, 2, 70.0),
    Sketcher.Constraint("Radius", 1, 3.225),
    Sketcher.Constraint("DistanceX", 5, 3, 3, 3, 10.0),
    Sketcher.Constraint("DistanceY", 0, 2, -1, 1, 5.5),
    Sketcher.Constraint("DistanceX", -1, 1, 1, 3, 75.954654),
])
pocket5 = body.newObject("PartDesign::Pocket", "Pocket004")
pocket5.Profile = sketch13
pocket5.Length = 5
pocket5.Reversed = True

doc.recompute()
